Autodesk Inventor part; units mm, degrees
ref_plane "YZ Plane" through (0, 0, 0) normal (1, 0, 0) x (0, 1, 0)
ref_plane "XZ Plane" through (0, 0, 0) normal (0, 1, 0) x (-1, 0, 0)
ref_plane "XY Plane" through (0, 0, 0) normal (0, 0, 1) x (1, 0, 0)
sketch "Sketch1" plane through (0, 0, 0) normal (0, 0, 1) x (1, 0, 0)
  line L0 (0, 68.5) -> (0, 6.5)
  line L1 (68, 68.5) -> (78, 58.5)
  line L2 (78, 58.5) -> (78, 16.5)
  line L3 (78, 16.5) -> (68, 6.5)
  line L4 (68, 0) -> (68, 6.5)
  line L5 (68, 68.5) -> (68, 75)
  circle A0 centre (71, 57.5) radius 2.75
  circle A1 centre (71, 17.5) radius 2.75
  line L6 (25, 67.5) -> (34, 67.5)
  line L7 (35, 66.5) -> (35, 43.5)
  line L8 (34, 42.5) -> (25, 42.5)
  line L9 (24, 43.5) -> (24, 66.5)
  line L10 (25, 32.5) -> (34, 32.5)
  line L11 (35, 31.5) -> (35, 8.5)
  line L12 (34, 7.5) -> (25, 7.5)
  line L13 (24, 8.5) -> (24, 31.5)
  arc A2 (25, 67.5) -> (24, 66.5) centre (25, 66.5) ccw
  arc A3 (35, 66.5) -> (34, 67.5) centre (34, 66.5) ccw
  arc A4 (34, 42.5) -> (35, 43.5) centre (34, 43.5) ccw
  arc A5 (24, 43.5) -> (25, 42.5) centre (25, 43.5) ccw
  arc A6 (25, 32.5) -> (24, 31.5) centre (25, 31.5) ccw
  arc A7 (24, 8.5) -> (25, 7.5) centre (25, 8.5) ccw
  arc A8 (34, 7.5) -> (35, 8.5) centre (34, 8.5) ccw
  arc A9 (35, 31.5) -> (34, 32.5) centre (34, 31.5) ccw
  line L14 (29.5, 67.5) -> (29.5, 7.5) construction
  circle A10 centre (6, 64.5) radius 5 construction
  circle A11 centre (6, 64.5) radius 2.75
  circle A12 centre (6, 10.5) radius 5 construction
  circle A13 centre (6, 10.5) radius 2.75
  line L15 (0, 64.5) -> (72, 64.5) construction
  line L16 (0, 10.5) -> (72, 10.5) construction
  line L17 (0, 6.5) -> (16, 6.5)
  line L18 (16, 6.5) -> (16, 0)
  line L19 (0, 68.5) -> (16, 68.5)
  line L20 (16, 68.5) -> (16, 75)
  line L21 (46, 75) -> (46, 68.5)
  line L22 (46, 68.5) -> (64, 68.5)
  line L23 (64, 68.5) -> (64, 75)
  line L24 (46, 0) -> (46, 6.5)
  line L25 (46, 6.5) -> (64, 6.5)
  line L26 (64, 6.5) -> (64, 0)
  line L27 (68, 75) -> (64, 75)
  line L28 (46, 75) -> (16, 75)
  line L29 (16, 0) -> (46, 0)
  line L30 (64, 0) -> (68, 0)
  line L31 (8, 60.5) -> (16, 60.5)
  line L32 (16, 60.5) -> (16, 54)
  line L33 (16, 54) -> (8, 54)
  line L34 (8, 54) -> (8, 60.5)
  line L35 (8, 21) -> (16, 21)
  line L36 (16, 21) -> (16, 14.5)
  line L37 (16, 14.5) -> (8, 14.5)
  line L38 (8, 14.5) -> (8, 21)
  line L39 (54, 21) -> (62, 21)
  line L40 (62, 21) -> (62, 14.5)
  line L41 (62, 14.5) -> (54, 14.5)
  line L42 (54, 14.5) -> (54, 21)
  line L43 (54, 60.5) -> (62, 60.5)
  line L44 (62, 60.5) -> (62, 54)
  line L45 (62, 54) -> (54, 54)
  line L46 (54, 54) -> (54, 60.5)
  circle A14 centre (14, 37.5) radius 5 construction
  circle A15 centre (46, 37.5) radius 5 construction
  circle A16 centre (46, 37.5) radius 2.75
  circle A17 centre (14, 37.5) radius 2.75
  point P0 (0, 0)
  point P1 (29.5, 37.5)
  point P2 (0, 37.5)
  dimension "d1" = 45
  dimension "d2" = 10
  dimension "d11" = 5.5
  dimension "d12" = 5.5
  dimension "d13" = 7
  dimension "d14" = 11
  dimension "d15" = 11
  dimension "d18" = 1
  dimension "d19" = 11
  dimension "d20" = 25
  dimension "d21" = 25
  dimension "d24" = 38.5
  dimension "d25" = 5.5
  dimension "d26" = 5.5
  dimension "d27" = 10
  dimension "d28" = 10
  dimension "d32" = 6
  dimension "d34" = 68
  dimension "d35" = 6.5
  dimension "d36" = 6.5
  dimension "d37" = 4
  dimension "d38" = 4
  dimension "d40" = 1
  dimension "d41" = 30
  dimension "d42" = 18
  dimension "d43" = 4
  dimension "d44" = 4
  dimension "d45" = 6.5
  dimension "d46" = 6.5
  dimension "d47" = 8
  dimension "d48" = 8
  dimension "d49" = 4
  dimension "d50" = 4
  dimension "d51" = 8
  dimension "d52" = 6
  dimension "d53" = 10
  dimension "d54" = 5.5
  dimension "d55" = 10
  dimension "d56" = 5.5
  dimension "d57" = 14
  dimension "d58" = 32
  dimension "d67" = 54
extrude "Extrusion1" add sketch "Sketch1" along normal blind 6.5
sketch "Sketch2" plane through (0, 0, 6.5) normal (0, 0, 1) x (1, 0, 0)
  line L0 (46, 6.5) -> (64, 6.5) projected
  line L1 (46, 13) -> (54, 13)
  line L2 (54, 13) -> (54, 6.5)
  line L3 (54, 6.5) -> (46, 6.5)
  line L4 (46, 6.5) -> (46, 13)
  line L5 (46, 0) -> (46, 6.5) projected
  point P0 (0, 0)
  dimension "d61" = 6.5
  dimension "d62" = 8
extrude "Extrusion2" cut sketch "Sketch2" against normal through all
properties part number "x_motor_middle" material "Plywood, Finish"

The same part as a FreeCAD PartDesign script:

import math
import FreeCAD as App
import Part
import Sketcher
from FreeCAD import Vector


def add_polygon(sketch, points):
    """Adds a closed chain of lines whose ends are joined by coincident constraints."""
    first, n = sketch.GeometryCount, len(points)
    for a, b in zip(points, points[1:] + points[:1]):
        sketch.addGeometry(Part.LineSegment(App.Vector(*a, 0), App.Vector(*b, 0)), False)
    for i in range(n):
        sketch.addConstraint(Sketcher.Constraint("Coincident", first + i, 2, first + (i + 1) % n, 1))

doc = App.newDocument("Part")
body = doc.addObject("PartDesign::Body", "Body")

sketch1 = doc.addObject("Sketcher::SketchObject", "Sketch")
body.addObject(sketch1)
sketch1.AttachmentSupport = (doc.XY_Plane, [""])
sketch1.MapMode = "FlatFace"
add_polygon(sketch1, [(16, 68.5), (0, 68.5), (0, 6.5), (16, 6.5), (16, 0), (46, 0), (46, 6.5), (64, 6.5), (64, 0), (68, 0), (68, 6.5), (78, 16.5), (78, 58.5), (68, 68.5), (68, 75), (64, 75), (64, 68.5), (46, 68.5), (46, 75), (16, 75)])
sketch1.addGeometry(Part.Circle(Vector(6, 10.5, 0), Vector(0, 0, 1), 2.8), False)
add_polygon(sketch1, [(8, 14.5), (8, 21), (16, 21), (16, 14.5)])
sketch1.addGeometry(Part.ArcOfCircle(Part.Circle(Vector(25, 31.5, 0), Vector(0, 0, 1), 1), math.radians(90), math.radians(180)), False)
sketch1.addGeometry(Part.LineSegment(Vector(25, 32.5, 0), Vector(34, 32.5, 0)), False)
sketch1.addGeometry(Part.ArcOfCircle(Part.Circle(Vector(34, 31.5, 0), Vector(0, 0, 1), 1), math.radians(0), math.radians(90)), False)
sketch1.addGeometry(Part.LineSegment(Vector(35, 31.5, 0), Vector(35, 8.5, 0)), False)
sketch1.addGeometry(Part.ArcOfCircle(Part.Circle(Vector(34, 8.5, 0), Vector(0, 0, 1), 1), math.radians(-90), math.radians(0)), False)
sketch1.addGeometry(Part.LineSegment(Vector(34, 7.5, 0), Vector(25, 7.5, 0)), False)
sketch1.addGeometry(Part.ArcOfCircle(Part.Circle(Vector(25, 8.5, 0), Vector(0, 0, 1), 1), math.radians(180), math.radians(270)), False)
sketch1.addGeometry(Part.LineSegment(Vector(24, 8.5, 0), Vector(24, 31.5, 0)), False)
add_polygon(sketch1, [(54, 14.5), (54, 21), (62, 21), (62, 14.5)])
sketch1.addGeometry(Part.Circle(Vector(71, 17.5, 0), Vector(0, 0, 1), 2.8), False)
sketch1.addGeometry(Part.Circle(Vector(14, 37.5, 0), Vector(0, 0, 1), 2.8), False)
sketch1.addGeometry(Part.ArcOfCircle(Part.Circle(Vector(25, 66.5, 0), Vector(0, 0, 1), 1), math.radians(90), math.radians(180)), False)
sketch1.addGeometry(Part.LineSegment(Vector(25, 67.5, 0), Vector(34, 67.5, 0)), False)
sketch1.addGeometry(Part.ArcOfCircle(Part.Circle(Vector(34, 66.5, 0), Vector(0, 0, 1), 1), math.radians(0), math.radians(90)), False)
sketch1.addGeometry(Part.LineSegment(Vector(35, 66.5, 0), Vector(35, 43.5, 0)), False)
sketch1.addGeometry(Part.ArcOfCircle(Part.Circle(Vector(34, 43.5, 0), Vector(0, 0, 1), 1), math.radians(-90), math.radians(0)), False)
sketch1.addGeometry(Part.LineSegment(Vector(34, 42.5, 0), Vector(25, 42.5, 0)), False)
sketch1.addGeometry(Part.ArcOfCircle(Part.Circle(Vector(25, 43.5, 0), Vector(0, 0, 1), 1), math.radians(180), math.radians(270)), False)
sketch1.addGeometry(Part.LineSegment(Vector(24, 43.5, 0), Vector(24, 66.5, 0)), False)
sketch1.addGeometry(Part.Circle(Vector(6, 64.5, 0), Vector(0, 0, 1), 2.8), False)
add_polygon(sketch1, [(8, 54), (8, 60.5), (16, 60.5), (16, 54)])
sketch1.addGeometry(Part.Circle(Vector(46, 37.5, 0), Vector(0, 0, 1), 2.8), False)
add_polygon(sketch1, [(54, 54), (54, 60.5), (62, 60.5), (62, 54)])
sketch1.addGeometry(Part.Circle(Vector(71, 57.5, 0), Vector(0, 0, 1), 2.8), False)
sketch1.addConstraint(Sketcher.Constraint("Tangent", 25, 1, 26, 1))
sketch1.addConstraint(Sketcher.Constraint("Tangent", 26, 2, 27, 2))
sketch1.addConstraint(Sketcher.Constraint("Tangent", 27, 1, 28, 1))
sketch1.addConstraint(Sketcher.Constraint("Tangent", 28, 2, 29, 2))
sketch1.addConstraint(Sketcher.Constraint("Tangent", 29, 1, 30, 1))
sketch1.addConstraint(Sketcher.Constraint("Tangent", 30, 2, 31, 2))
sketch1.addConstraint(Sketcher.Constraint("Tangent", 31, 1, 32, 1))
sketch1.addConstraint(Sketcher.Constraint("Tangent", 32, 2, 25, 2))
sketch1.addConstraint(Sketcher.Constraint("Tangent", 39, 1, 40, 1))
sketch1.addConstraint(Sketcher.Constraint("Tangent", 40, 2, 41, 2))
sketch1.addConstraint(Sketcher.Constraint("Tangent", 41, 1, 42, 1))
sketch1.addConstraint(Sketcher.Constraint("Tangent", 42, 2, 43, 2))
sketch1.addConstraint(Sketcher.Constraint("Tangent", 43, 1, 44, 1))
sketch1.addConstraint(Sketcher.Constraint("Tangent", 44, 2, 45, 2))
sketch1.addConstraint(Sketcher.Constraint("Tangent", 45, 1, 46, 1))
sketch1.addConstraint(Sketcher.Constraint("Tangent", 46, 2, 39, 2))
sketch1.addConstraint(Sketcher.Constraint("Horizontal", 0))
sketch1.addConstraint(Sketcher.Constraint("Vertical", 1))
sketch1.addConstraint(Sketcher.Constraint("Horizontal", 2))
sketch1.addConstraint(Sketcher.Constraint("Vertical", 3))
sketch1.addConstraint(Sketcher.Constraint("Horizontal", 4))
sketch1.addConstraint(Sketcher.Constraint("Vertical", 5))
sketch1.addConstraint(Sketcher.Constraint("Horizontal", 6))
sketch1.addConstraint(Sketcher.Constraint("Vertical", 7))
sketch1.addConstraint(Sketcher.Constraint("Horizontal", 8))
sketch1.addConstraint(Sketcher.Constraint("Vertical", 9))
sketch1.addConstraint(Sketcher.Constraint("Vertical", 11))
sketch1.addConstraint(Sketcher.Constraint("Vertical", 13))
sketch1.addConstraint(Sketcher.Constraint("Horizontal", 14))
sketch1.addConstraint(Sketcher.Constraint("Vertical", 15))
sketch1.addConstraint(Sketcher.Constraint("Horizontal", 16))
sketch1.addConstraint(Sketcher.Constraint("Vertical", 17))
sketch1.addConstraint(Sketcher.Constraint("Horizontal", 18))
sketch1.addConstraint(Sketcher.Constraint("Vertical", 19))
sketch1.addConstraint(Sketcher.Constraint("Vertical", 21))
sketch1.addConstraint(Sketcher.Constraint("Horizontal", 22))
sketch1.addConstraint(Sketcher.Constraint("Vertical", 23))
sketch1.addConstraint(Sketcher.Constraint("Horizontal", 24))
sketch1.addConstraint(Sketcher.Constraint("Horizontal", 26))
sketch1.addConstraint(Sketcher.Constraint("Vertical", 28))
sketch1.addConstraint(Sketcher.Constraint("Horizontal", 30))
sketch1.addConstraint(Sketcher.Constraint("Vertical", 32))
sketch1.addConstraint(Sketcher.Constraint("Vertical", 33))
sketch1.addConstraint(Sketcher.Constraint("Horizontal", 34))
sketch1.addConstraint(Sketcher.Constraint("Vertical", 35))
sketch1.addConstraint(Sketcher.Constraint("Horizontal", 36))
sketch1.addConstraint(Sketcher.Constraint("Horizontal", 40))
sketch1.addConstraint(Sketcher.Constraint("Vertical", 42))
sketch1.addConstraint(Sketcher.Constraint("Horizontal", 44))
sketch1.addConstraint(Sketcher.Constraint("Vertical", 46))
sketch1.addConstraint(Sketcher.Constraint("Vertical", 48))
sketch1.addConstraint(Sketcher.Constraint("Horizontal", 49))
sketch1.addConstraint(Sketcher.Constraint("Vertical", 50))
sketch1.addConstraint(Sketcher.Constraint("Horizontal", 51))
sketch1.addConstraint(Sketcher.Constraint("Vertical", 53))
sketch1.addConstraint(Sketcher.Constraint("Horizontal", 54))
sketch1.addConstraint(Sketcher.Constraint("Vertical", 55))
sketch1.addConstraint(Sketcher.Constraint("Horizontal", 56))
sketch1.addConstraint(Sketcher.Constraint("Equal", 25, 27))
sketch1.addConstraint(Sketcher.Constraint("Equal", 27, 29))
sketch1.addConstraint(Sketcher.Constraint("Equal", 29, 31))
sketch1.addConstraint(Sketcher.Constraint("Equal", 20, 37))
sketch1.addConstraint(Sketcher.Constraint("Equal", 37, 38))
sketch1.addConstraint(Sketcher.Constraint("Equal", 31, 39))
sketch1.addConstraint(Sketcher.Constraint("Equal", 39, 41))
sketch1.addConstraint(Sketcher.Constraint("Equal", 41, 43))
sketch1.addConstraint(Sketcher.Constraint("Equal", 43, 45))
sketch1.addConstraint(Sketcher.Constraint("Equal", 38, 47))
sketch1.addConstraint(Sketcher.Constraint("Equal", 47, 52))
sketch1.addConstraint(Sketcher.Constraint("Equal", 52, 57))
sketch1.addConstraint(Sketcher.Constraint("PointOnObject", 0, 2, -2))
sketch1.addConstraint(Sketcher.Constraint("PointOnObject", 3, 2, -1))
sketch1.addConstraint(Sketcher.Constraint("PointOnObject", 7, 2, -1))
sketch1.addConstraint(Sketcher.Constraint("Perpendicular", 10, 12))
sketch1.addConstraint(Sketcher.Constraint("Horizontal", 38, 3, 52, 3))
sketch1.addConstraint(Sketcher.Constraint("Horizontal", 2, 2, 5, 2))
sketch1.addConstraint(Sketcher.Constraint("Horizontal", 6, 2, 9, 2))
sketch1.addConstraint(Sketcher.Constraint("Horizontal", 0, 2, 12, 2))
sketch1.addConstraint(Sketcher.Constraint("Horizontal", 12, 2, 15, 2))
sketch1.addConstraint(Sketcher.Constraint("Horizontal", 14, 2, 17, 2))
sketch1.addConstraint(Sketcher.Constraint("Horizontal", 22, 2, 33, 2))
sketch1.addConstraint(Sketcher.Constraint("Horizontal", 24, 2, 35, 2))
sketch1.addConstraint(Sketcher.Constraint("Horizontal", 49, 2, 53, 2))
sketch1.addConstraint(Sketcher.Constraint("Horizontal", 51, 2, 55, 2))
sketch1.addConstraint(Sketcher.Constraint("Vertical", 31, 3, 39, 3))
sketch1.addConstraint(Sketcher.Constraint("Vertical", 29, 3, 41, 3))
sketch1.addConstraint(Sketcher.Constraint("Vertical", 20, 3, 47, 3))
sketch1.addConstraint(Sketcher.Constraint("Vertical", 37, 3, 57, 3))
sketch1.addConstraint(Sketcher.Constraint("Vertical", 52, 3, 4, 2))
sketch1.addConstraint(Sketcher.Constraint("Vertical", 9, 2, 12, 2))
sketch1.addConstraint(Sketcher.Constraint("Vertical", 7, 2, 14, 2))
sketch1.addConstraint(Sketcher.Constraint("Vertical", 5, 2, 16, 2))
sketch1.addConstraint(Sketcher.Constraint("Vertical", 3, 2, 18, 2))
sketch1.addConstraint(Sketcher.Constraint("Vertical", 19, 2, 22, 2))
sketch1.addConstraint(Sketcher.Constraint("Vertical", 24, 2, 48, 2))
sketch1.addConstraint(Sketcher.Constraint("Vertical", 23, 2, 49, 2))
sketch1.addConstraint(Sketcher.Constraint("Vertical", 36, 2, 53, 2))
sketch1.addConstraint(Sketcher.Constraint("Vertical", 35, 2, 54, 2))
sketch1.addConstraint(Sketcher.Constraint("Equal", 24, 34))
sketch1.addConstraint(Sketcher.Constraint("Equal", 9, 13))
sketch1.addConstraint(Sketcher.Constraint("Equal", 19, 21))
sketch1.addConstraint(Sketcher.Constraint("Equal", 32, 42))
sketch1.addConstraint(Sketcher.Constraint("Equal", 35, 48))
sketch1.addConstraint(Sketcher.Constraint("Equal", 10, 12))
sketch1.addConstraint(Sketcher.Constraint("Radius", 25, 1.0))
sketch1.addConstraint(Sketcher.Constraint("Diameter", 20, 5.5))
sketch1.addConstraint(Sketcher.Constraint("DistanceX", 4, 1, 4, 2, 30.0))
sketch1.addConstraint(Sketcher.Constraint("DistanceX", 6, 1, 6, 2, 18.0))
sketch1.addConstraint(Sketcher.Constraint("DistanceX", 8, 1, 8, 2, 4.0))
sketch1.addConstraint(Sketcher.Constraint("DistanceX", 22, 1, 22, 2, 8.0))
sketch1.addConstraint(Sketcher.Constraint("DistanceY", 3, 2, 3, 1, 6.5))
sketch1.addConstraint(Sketcher.Constraint("DistanceX", -1, 1, 20, 3, 6.0))
sketch1.addConstraint(Sketcher.Constraint("DistanceX", -1, 1, 25, 3, 25.0))
sketch1.addConstraint(Sketcher.Constraint("DistanceX", -1, 1, 38, 3, 14.0))
sketch1.addConstraint(Sketcher.Constraint("DistanceX", -1, 1, 8, 2, 68.0))
sketch1.addConstraint(Sketcher.Constraint("DistanceX", -1, 1, 33, 2, 54.0))
sketch1.addConstraint(Sketcher.Constraint("DistanceY", -1, 1, 50, 2, 54.0))
sketch1.addConstraint(Sketcher.Constraint("DistanceX", 26, 1, 26, 2, 9.0))
sketch1.addConstraint(Sketcher.Constraint("DistanceY", 1, 2, 1, 1, 62.0))
sketch1.addConstraint(Sketcher.Constraint("DistanceY", 11, 1, 11, 2, 42.0))
sketch1.addConstraint(Sketcher.Constraint("DistanceY", 28, 2, 28, 1, 23.0))
sketch1.addConstraint(Sketcher.Constraint("DistanceX", -1, 1, 37, 3, 71.0))
sketch1.addConstraint(Sketcher.Constraint("DistanceY", -1, 1, 21, 2, 21.0))
sketch1.addConstraint(Sketcher.Constraint("DistanceY", -1, 1, 20, 3, 10.5))
sketch1.addConstraint(Sketcher.Constraint("DistanceY", -1, 1, 25, 3, 31.5))
sketch1.addConstraint(Sketcher.Constraint("DistanceY", -1, 1, 37, 3, 17.5))
sketch1.addConstraint(Sketcher.Constraint("DistanceY", -1, 1, 38, 3, 37.5))
sketch1.addConstraint(Sketcher.Constraint("DistanceY", -1, 1, 39, 3, 66.5))
sketch1.addConstraint(Sketcher.Constraint("DistanceY", -1, 1, 47, 3, 64.5))
sketch1.addConstraint(Sketcher.Constraint("DistanceY", -1, 1, 57, 3, 57.5))
pad1 = doc.addObject("PartDesign::Pad", "Pad")
body.addObject(pad1)
pad1.Profile = sketch1
pad1.Length = 6.5

sketch2 = doc.addObject("Sketcher::SketchObject", "Sketch001")
body.addObject(sketch2)
sketch2.AttachmentSupport = (doc.XY_Plane, [""])
sketch2.MapMode = "FlatFace"
sketch2.AttachmentOffset = App.Placement(Vector(0, 0, 6.5), App.Rotation())
add_polygon(sketch2, [(46, 13), (46, 6), (54, 6), (54, 13)])
sketch2.addConstraint(Sketcher.Constraint("Vertical", 0))
sketch2.addConstraint(Sketcher.Constraint("Horizontal", 1))
sketch2.addConstraint(Sketcher.Constraint("Vertical", 2))
sketch2.addConstraint(Sketcher.Constraint("Horizontal", 3))
sketch2.addConstraint(Sketcher.Constraint("DistanceX", 1, 1, 1, 2, 8.0))
sketch2.addConstraint(Sketcher.Constraint("DistanceY", 0, 2, 0, 1, 6.5))
sketch2.addConstraint(Sketcher.Constraint("DistanceY", -1, 1, 0, 2, 6.5))
sketch2.addConstraint(Sketcher.Constraint("DistanceX", -1, 1, 0, 2, 46.0))
pocket1 = doc.addObject("PartDesign::Pocket", "Pocket")
body.addObject(pocket1)
pocket1.Profile = sketch2
pocket1.Type = "ThroughAll"

doc.recompute()
